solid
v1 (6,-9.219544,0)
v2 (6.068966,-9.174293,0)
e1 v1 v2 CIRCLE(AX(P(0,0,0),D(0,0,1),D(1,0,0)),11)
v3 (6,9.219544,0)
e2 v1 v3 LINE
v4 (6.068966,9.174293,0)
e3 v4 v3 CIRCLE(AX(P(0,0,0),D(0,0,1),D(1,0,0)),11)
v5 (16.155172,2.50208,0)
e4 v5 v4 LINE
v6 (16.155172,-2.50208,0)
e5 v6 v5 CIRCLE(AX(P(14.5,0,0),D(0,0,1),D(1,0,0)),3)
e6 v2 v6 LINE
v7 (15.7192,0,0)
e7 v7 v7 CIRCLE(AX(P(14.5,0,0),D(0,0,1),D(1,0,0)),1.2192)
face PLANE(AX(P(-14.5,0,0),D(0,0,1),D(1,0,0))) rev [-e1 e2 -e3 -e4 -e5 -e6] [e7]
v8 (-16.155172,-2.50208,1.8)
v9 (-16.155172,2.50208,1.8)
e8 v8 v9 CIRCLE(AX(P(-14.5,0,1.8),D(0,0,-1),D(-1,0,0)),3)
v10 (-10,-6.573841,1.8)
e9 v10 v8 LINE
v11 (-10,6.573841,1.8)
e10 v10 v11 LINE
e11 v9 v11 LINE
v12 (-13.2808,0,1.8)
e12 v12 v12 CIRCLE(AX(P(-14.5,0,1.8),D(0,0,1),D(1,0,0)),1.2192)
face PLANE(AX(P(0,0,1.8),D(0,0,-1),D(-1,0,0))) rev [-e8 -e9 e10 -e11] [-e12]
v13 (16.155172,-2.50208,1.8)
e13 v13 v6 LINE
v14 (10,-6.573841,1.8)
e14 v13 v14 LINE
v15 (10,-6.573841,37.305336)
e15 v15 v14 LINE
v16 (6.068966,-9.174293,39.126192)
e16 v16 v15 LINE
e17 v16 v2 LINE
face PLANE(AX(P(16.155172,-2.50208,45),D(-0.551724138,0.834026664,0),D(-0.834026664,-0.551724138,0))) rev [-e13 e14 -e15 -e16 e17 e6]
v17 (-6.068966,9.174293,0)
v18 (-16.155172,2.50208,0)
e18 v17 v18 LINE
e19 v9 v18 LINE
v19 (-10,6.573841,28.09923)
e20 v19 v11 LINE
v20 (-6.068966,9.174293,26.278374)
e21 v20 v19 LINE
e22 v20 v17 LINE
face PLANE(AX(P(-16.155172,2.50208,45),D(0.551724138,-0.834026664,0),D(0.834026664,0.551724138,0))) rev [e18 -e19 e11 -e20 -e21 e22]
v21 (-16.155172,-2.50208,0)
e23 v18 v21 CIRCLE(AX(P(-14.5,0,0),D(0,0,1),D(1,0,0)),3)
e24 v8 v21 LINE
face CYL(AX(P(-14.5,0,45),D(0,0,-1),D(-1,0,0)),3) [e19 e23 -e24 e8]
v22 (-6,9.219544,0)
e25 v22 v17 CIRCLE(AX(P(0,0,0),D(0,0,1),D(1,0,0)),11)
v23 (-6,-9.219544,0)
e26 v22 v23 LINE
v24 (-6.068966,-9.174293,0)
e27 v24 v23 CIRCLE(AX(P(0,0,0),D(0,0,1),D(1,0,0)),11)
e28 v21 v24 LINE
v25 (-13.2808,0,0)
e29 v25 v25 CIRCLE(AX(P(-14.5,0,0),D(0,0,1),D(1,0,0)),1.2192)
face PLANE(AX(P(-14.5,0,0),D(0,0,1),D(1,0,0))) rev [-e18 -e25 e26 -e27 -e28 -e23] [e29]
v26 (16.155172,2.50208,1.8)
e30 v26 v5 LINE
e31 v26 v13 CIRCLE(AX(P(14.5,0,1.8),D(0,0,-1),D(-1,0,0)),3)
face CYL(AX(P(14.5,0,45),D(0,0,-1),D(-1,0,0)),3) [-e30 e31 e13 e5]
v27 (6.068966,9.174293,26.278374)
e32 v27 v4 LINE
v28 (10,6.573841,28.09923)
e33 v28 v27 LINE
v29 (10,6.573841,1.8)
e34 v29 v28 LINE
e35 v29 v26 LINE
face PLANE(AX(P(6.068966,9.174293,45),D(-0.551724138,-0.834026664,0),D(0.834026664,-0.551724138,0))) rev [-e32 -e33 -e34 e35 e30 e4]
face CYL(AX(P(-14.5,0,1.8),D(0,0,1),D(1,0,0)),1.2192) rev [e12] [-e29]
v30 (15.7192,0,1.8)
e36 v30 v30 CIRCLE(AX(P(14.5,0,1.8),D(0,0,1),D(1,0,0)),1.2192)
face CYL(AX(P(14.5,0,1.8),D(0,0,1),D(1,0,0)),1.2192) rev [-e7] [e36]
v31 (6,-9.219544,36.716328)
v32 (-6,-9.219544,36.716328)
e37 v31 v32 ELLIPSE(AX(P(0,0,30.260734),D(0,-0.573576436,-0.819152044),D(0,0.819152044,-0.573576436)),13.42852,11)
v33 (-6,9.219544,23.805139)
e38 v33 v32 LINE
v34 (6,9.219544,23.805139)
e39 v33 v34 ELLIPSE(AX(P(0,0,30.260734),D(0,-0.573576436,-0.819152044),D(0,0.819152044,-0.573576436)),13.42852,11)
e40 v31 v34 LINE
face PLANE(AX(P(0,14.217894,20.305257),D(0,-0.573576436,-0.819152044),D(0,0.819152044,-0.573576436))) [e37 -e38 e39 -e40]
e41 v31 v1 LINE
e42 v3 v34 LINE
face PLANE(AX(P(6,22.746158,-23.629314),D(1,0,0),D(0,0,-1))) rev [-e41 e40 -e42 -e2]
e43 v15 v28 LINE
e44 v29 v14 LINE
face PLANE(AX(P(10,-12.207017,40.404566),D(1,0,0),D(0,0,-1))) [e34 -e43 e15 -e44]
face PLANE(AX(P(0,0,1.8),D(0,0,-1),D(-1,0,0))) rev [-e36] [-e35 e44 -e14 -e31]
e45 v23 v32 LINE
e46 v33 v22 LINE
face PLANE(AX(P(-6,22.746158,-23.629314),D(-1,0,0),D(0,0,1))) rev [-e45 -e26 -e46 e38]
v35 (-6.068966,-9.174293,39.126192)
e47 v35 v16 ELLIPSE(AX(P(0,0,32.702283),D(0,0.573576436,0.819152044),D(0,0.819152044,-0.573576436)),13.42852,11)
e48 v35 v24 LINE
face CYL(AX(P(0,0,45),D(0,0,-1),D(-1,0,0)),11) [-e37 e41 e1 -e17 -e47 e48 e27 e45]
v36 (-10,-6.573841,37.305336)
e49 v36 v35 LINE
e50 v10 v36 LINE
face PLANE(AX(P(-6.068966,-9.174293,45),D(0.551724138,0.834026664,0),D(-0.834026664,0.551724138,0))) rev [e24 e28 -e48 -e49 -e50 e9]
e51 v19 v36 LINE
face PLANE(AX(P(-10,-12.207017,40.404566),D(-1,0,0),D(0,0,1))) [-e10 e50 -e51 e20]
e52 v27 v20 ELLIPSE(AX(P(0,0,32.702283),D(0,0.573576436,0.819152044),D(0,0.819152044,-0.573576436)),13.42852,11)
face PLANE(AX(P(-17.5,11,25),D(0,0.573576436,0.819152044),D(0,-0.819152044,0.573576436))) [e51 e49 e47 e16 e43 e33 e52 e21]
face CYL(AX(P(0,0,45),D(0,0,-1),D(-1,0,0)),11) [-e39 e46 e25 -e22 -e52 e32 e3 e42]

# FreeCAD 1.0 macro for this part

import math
import FreeCAD as App
import Part
import Sketcher
from FreeCAD import Vector
Q = App.Units.Quantity

doc = App.newDocument("Part")
params = doc.addObject("Spreadsheet::Sheet", "Params")
for row, (alias, value) in enumerate([
    ("sketch1_radius", "3 mm"),
    ("sketch1_radius2", "11 mm"),
    ("pad1_length", "45 mm"),
    ("sketch2_width", "22 mm"),
    ("sketch2_height", "25 mm"),
    ("sketch3_width", "20 mm"),
    ("hole_diameter", "2.4384 mm"),
    ("sketch5_width", "12 mm"),
], start=1):
    params.set(f"A{row}", alias)
    params.set(f"B{row}", "=" + value)
    params.setAlias(f"B{row}", alias)

body = doc.addObject("PartDesign::Body", "Body")

# Sketch on XY plane
sketch1 = body.newObject("Sketcher::SketchObject", "Sketch")
sketch1.AttachmentSupport = (doc.getObject("XY_Plane"), [""])
sketch1.MapMode = "FlatFace"
sketch1.addGeometry(Part.LineSegment(Vector(-6.1, 9.2, 0), Vector(-16.2, 2.5, 0)), False)
sketch1.addGeometry(Part.ArcOfCircle(Part.Circle(Vector(-14.5, 0, 0), Vector(0, 0, 1), 3), math.radians(123), math.radians(237)), False)
sketch1.addGeometry(Part.LineSegment(Vector(-16.2, -2.5, 0), Vector(-6.1, -9.2, 0)), False)
sketch1.addGeometry(Part.ArcOfCircle(Part.Circle(Vector(0, 0, 0), Vector(0, 0, 1), 11), math.radians(-123), math.radians(-57)), False)
sketch1.addGeometry(Part.LineSegment(Vector(6.1, -9.2, 0), Vector(16.2, -2.5, 0)), False)
sketch1.addGeometry(Part.ArcOfCircle(Part.Circle(Vector(14.5, 0, 0), Vector(0, 0, 1), 3), math.radians(-57), math.radians(57)), False)
sketch1.addGeometry(Part.LineSegment(Vector(16.2, 2.5, 0), Vector(6.1, 9.2, 0)), False)
sketch1.addGeometry(Part.ArcOfCircle(Part.Circle(Vector(0, 0, 0), Vector(0, 0, 1), 11), math.radians(57), math.radians(123)), False)
sketch1.addConstraint(Sketcher.Constraint("Tangent", 0, 2, 1, 1))
sketch1.addConstraint(Sketcher.Constraint("Tangent", 1, 2, 2, 1))
sketch1.addConstraint(Sketcher.Constraint("Tangent", 2, 2, 3, 1))
sketch1.addConstraint(Sketcher.Constraint("Tangent", 3, 2, 4, 1))
sketch1.addConstraint(Sketcher.Constraint("Tangent", 4, 2, 5, 1))
sketch1.addConstraint(Sketcher.Constraint("Tangent", 5, 2, 6, 1))
sketch1.addConstraint(Sketcher.Constraint("Tangent", 6, 2, 7, 1))
sketch1.addConstraint(Sketcher.Constraint("Tangent", 7, 2, 0, 1))
sketch1.addConstraint(Sketcher.Constraint("Coincident", 3, 3, -1, 1))
sketch1.addConstraint(Sketcher.Constraint("Coincident", 7, 3, -1, 1))
sketch1.addConstraint(Sketcher.Constraint("Equal", 1, 5))
sketch1.addConstraint(Sketcher.Constraint("Equal", 3, 7))
sketch1.addConstraint(Sketcher.Constraint("Symmetric", 1, 3, 5, 3, -1, 1))
sketch1.addConstraint(Sketcher.Constraint("PointOnObject", 1, 3, -1))
sketch1.addConstraint(Sketcher.Constraint("Radius", 1, Q("3 mm")))
sketch1.addConstraint(Sketcher.Constraint("Radius", 3, Q("11 mm")))
sketch1.addConstraint(Sketcher.Constraint("DistanceX", 1, 3, 5, 3, Q("29 mm")))
sketch1.setExpression("Constraints[14]", "Params.sketch1_radius")
sketch1.setExpression("Constraints[15]", "Params.sketch1_radius2")
pad1 = body.newObject("PartDesign::Pad", "Pad")
pad1.Profile = sketch1
pad1.setExpression("Length", "Params.pad1_length")

# Sketch on YZ plane
sketch2 = body.newObject("Sketcher::SketchObject", "Sketch001")
sketch2.AttachmentSupport = (doc.getObject("YZ_Plane"), [""])
sketch2.MapMode = "FlatFace"
sketch2.addGeometry(Part.LineSegment(Vector(18, 52, 0), Vector(-18, 52, 0)), False)
sketch2.addGeometry(Part.LineSegment(Vector(-18, 52, 0), Vector(-18, -7, 0)), False)
sketch2.addGeometry(Part.LineSegment(Vector(-18, -7, 0), Vector(18, -7, 0)), False)
sketch2.addGeometry(Part.LineSegment(Vector(18, -7, 0), Vector(18, 52, 0)), False)
sketch2.addGeometry(Part.LineSegment(Vector(-11, 40, 0), Vector(11, 25, 0)), False)
sketch2.addGeometry(Part.LineSegment(Vector(11, 25, 0), Vector(11, 0, 0)), False)
sketch2.addGeometry(Part.LineSegment(Vector(11, 0, 0), Vector(-11, 0, 0)), False)
sketch2.addGeometry(Part.LineSegment(Vector(-11, 0, 0), Vector(-11, 40, 0)), False)
sketch2.addConstraint(Sketcher.Constraint("Coincident", 0, 2, 1, 1))
sketch2.addConstraint(Sketcher.Constraint("Coincident", 1, 2, 2, 1))
sketch2.addConstraint(Sketcher.Constraint("Coincident", 2, 2, 3, 1))
sketch2.addConstraint(Sketcher.Constraint("Coincident", 3, 2, 0, 1))
sketch2.addConstraint(Sketcher.Constraint("Coincident", 4, 2, 5, 1))
sketch2.addConstraint(Sketcher.Constraint("Coincident", 5, 2, 6, 1))
sketch2.addConstraint(Sketcher.Constraint("Coincident", 6, 2, 7, 1))
sketch2.addConstraint(Sketcher.Constraint("Coincident", 7, 2, 4, 1))
sketch2.addConstraint(Sketcher.Constraint("Horizontal", 0))
sketch2.addConstraint(Sketcher.Constraint("Vertical", 1))
sketch2.addConstraint(Sketcher.Constraint("Horizontal", 2))
sketch2.addConstraint(Sketcher.Constraint("Vertical", 3))
sketch2.addConstraint(Sketcher.Constraint("Vertical", 5))
sketch2.addConstraint(Sketcher.Constraint("Horizontal", 6))
sketch2.addConstraint(Sketcher.Constraint("Vertical", 7))
sketch2.addConstraint(Sketcher.Constraint("Symmetric", 5, 2, 6, 2, -1, 1))
sketch2.addConstraint(Sketcher.Constraint("DistanceX", 6, 2, 6, 1, Q("22 mm")))
sketch2.addConstraint(Sketcher.Constraint("DistanceY", 5, 2, 5, 1, Q("25 mm")))
sketch2.addConstraint(Sketcher.Constraint("Angle", 4, Q("-35 deg")))
sketch2.addConstraint(Sketcher.Constraint("DistanceX", 0, 2, 0, 1, Q("36.222 mm")))
sketch2.addConstraint(Sketcher.Constraint("DistanceY", 1, 2, 1, 1, Q("59.222 mm")))
sketch2.addConstraint(Sketcher.Constraint("DistanceX", 0, 2, -1, 1, Q("18.111 mm")))
sketch2.addConstraint(Sketcher.Constraint("DistanceY", -1, 1, 0, 2, Q("52.111 mm")))
sketch2.setExpression("Constraints[16]", "Params.sketch2_width")
sketch2.setExpression("Constraints[17]", "Params.sketch2_height")
pocket1 = body.newObject("PartDesign::Pocket", "Pocket")
pocket1.Profile = sketch2
pocket1.Type = "ThroughAll"
pocket1.Midplane = True

# Sketch on XY plane
sketch3 = body.newObject("Sketcher::SketchObject", "Sketch002")
sketch3.AttachmentSupport = (doc.getObject("XY_Plane"), [""])
sketch3.MapMode = "FlatFace"
sketch3.AttachmentOffset = App.Placement(Vector(0, 0, 1.8), App.Rotation())
sketch3.addGeometry(Part.LineSegment(Vector(24, 18, 0), Vector(24, -18, 0)), False)
sketch3.addGeometry(Part.LineSegment(Vector(24, -18, 0), Vector(-24, -18, 0)), False)
sketch3.addGeometry(Part.LineSegment(Vector(-24, -18, 0), Vector(-24, 18, 0)), False)
sketch3.addGeometry(Part.LineSegment(Vector(-24, 18, 0), Vector(24, 18, 0)), False)
sketch3.addGeometry(Part.LineSegment(Vector(-10, -12, 0), Vector(10, -12, 0)), False)
sketch3.addGeometry(Part.LineSegment(Vector(10, -12, 0), Vector(10, 12, 0)), False)
sketch3.addGeometry(Part.LineSegment(Vector(10, 12, 0), Vector(-10, 12, 0)), False)
sketch3.addGeometry(Part.LineSegment(Vector(-10, 12, 0), Vector(-10, -12, 0)), False)
sketch3.addConstraint(Sketcher.Constraint("Coincident", 0, 2, 1, 1))
sketch3.addConstraint(Sketcher.Constraint("Coincident", 1, 2, 2, 1))
sketch3.addConstraint(Sketcher.Constraint("Coincident", 2, 2, 3, 1))
sketch3.addConstraint(Sketcher.Constraint("Coincident", 3, 2, 0, 1))
sketch3.addConstraint(Sketcher.Constraint("Coincident", 4, 2, 5, 1))
sketch3.addConstraint(Sketcher.Constraint("Coincident", 5, 2, 6, 1))
sketch3.addConstraint(Sketcher.Constraint("Coincident", 6, 2, 7, 1))
sketch3.addConstraint(Sketcher.Constraint("Coincident", 7, 2, 4, 1))
sketch3.addConstraint(Sketcher.Constraint("Vertical", 0))
sketch3.addConstraint(Sketcher.Constraint("Horizontal", 1))
sketch3.addConstraint(Sketcher.Constraint("Vertical", 2))
sketch3.addConstraint(Sketcher.Constraint("Horizontal", 3))
sketch3.addConstraint(Sketcher.Constraint("Horizontal", 4))
sketch3.addConstraint(Sketcher.Constraint("Vertical", 5))
sketch3.addConstraint(Sketcher.Constraint("Horizontal", 6))
sketch3.addConstraint(Sketcher.Constraint("Vertical", 7))
sketch3.addConstraint(Sketcher.Constraint("Symmetric", 0, 2, 2, 2, -1, 1))
sketch3.addConstraint(Sketcher.Constraint("Symmetric", 4, 2, 6, 2, -1, 1))
sketch3.addConstraint(Sketcher.Constraint("DistanceX", 4, 1, 4, 2, Q("20 mm")))
sketch3.addConstraint(Sketcher.Constraint("DistanceX", 1, 2, 1, 1, Q("48.562 mm")))
sketch3.addConstraint(Sketcher.Constraint("DistanceY", 0, 2, 0, 1, Q("35.562 mm")))
sketch3.addConstraint(Sketcher.Constraint("DistanceY", 5, 1, 5, 2, Q("24.414034 mm")))
sketch3.setExpression("Constraints[18]", "Params.sketch3_width")
pocket2 = body.newObject("PartDesign::Pocket", "Pocket001")
pocket2.Profile = sketch3
pocket2.Type = "ThroughAll"
pocket2.Reversed = True

# Sketch on XY plane
sketch4 = body.newObject("Sketcher::SketchObject", "Sketch003")
sketch4.AttachmentSupport = (doc.getObject("XY_Plane"), [""])
sketch4.MapMode = "FlatFace"
sketch4.AttachmentOffset = App.Placement(Vector(0, 0, 1.8), App.Rotation())
sketch4.addGeometry(Part.Circle(Vector(14.5, 0, 0), Vector(0, 0, 1), 1.2), False)
sketch4.addGeometry(Part.Circle(Vector(-14.5, 0, 0), Vector(0, 0, 1), 1.2), False)
sketch4.addConstraint(Sketcher.Constraint("Equal", 0, 1))
sketch4.addConstraint(Sketcher.Constraint("Symmetric", 0, 3, 1, 3, -1, 1))
sketch4.addConstraint(Sketcher.Constraint("PointOnObject", 0, 3, -1))
sketch4.addConstraint(Sketcher.Constraint("DistanceX", 1, 3, 0, 3, Q("29 mm")))
sketch4.addConstraint(Sketcher.Constraint("Diameter", 0, Q("2.4384 mm")))
doc.recompute()
hole = body.newObject("PartDesign::Hole", "Hole")
hole.Profile = sketch4
hole.ThreadType = "None"
hole.setExpression("Diameter", "Params.hole_diameter")
hole.DepthType = "ThroughAll"

# Sketch on an angled plane
sketch5 = body.newObject("Sketcher::SketchObject", "Sketch004")
sketch5.Placement = App.Placement(Vector(0, 14.217894, 20.305257), App.Rotation(Vector(1, 0, 0), Vector(0, 0.819152044, -0.573576436), Vector(0, 0.573576436, 0.819152044), "ZXY"))
sketch5.addGeometry(Part.LineSegment(Vector(-6, 32, 0), Vector(-6, -32, 0)), False)
sketch5.addGeometry(Part.LineSegment(Vector(-6, -32, 0), Vector(6, -32, 0)), False)
sketch5.addGeometry(Part.LineSegment(Vector(6, -32, 0), Vector(6, 32, 0)), False)
sketch5.addGeometry(Part.LineSegment(Vector(6, 32, 0), Vector(-6, 32, 0)), False)
sketch5.addConstraint(Sketcher.Constraint("Coincident", 0, 2, 1, 1))
sketch5.addConstraint(Sketcher.Constraint("Coincident", 1, 2, 2, 1))
sketch5.addConstraint(Sketcher.Constraint("Coincident", 2, 2, 3, 1))
sketch5.addConstraint(Sketcher.Constraint("Coincident", 3, 2, 0, 1))
sketch5.addConstraint(Sketcher.Constraint("Vertical", 0))
sketch5.addConstraint(Sketcher.Constraint("Horizontal", 1))
sketch5.addConstraint(Sketcher.Constraint("Vertical", 2))
sketch5.addConstraint(Sketcher.Constraint("Horizontal", 3))
sketch5.addConstraint(Sketcher.Constraint("Symmetric", 0, 2, 2, 2, -1, 1))
sketch5.addConstraint(Sketcher.Constraint("DistanceX", 1, 1, 1, 2, Q("12 mm")))
sketch5.addConstraint(Sketcher.Constraint("DistanceY", 0, 2, 0, 1, Q("64.371559 mm")))
sketch5.setExpression("Constraints[9]", "Params.sketch5_width")
pocket3 = body.newObject("PartDesign::Pocket", "Pocket002")
pocket3.Profile = sketch5
pocket3.Type = "ThroughAll"

doc.recompute()
